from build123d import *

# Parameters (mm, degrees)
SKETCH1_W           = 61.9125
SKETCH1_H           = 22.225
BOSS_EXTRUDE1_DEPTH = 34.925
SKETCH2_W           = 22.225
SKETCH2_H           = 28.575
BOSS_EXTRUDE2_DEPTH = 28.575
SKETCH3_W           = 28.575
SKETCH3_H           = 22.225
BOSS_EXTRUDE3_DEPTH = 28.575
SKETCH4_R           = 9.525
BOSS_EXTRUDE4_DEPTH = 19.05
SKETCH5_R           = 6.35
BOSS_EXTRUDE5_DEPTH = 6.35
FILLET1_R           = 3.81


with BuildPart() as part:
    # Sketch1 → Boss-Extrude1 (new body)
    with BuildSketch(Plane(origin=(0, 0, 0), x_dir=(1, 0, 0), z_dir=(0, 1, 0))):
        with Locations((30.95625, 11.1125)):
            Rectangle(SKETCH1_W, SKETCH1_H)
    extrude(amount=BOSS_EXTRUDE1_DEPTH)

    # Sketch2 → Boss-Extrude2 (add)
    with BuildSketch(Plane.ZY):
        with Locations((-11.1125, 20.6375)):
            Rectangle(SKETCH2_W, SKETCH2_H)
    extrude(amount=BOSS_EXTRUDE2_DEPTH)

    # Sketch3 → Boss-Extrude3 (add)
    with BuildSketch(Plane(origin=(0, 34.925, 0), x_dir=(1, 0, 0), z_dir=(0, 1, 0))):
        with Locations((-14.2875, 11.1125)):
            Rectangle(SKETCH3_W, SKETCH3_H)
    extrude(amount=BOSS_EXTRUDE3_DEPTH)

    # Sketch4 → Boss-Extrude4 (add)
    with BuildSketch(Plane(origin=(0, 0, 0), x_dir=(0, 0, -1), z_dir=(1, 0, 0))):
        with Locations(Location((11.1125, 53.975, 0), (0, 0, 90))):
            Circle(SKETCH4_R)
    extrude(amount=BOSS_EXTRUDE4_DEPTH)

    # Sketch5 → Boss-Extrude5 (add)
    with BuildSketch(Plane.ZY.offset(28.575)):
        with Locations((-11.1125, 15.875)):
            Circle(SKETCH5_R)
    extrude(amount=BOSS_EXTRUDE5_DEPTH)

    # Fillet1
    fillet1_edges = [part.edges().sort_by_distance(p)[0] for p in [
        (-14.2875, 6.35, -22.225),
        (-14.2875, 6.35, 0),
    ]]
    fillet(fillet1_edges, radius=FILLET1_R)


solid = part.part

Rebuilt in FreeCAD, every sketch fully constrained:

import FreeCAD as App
import Part
import Sketcher
Q = App.Units.Quantity


def edges_at(feature, points):
    """Names of the edges that pass closest to the given points."""
    edges = feature.Shape.Edges
    near = lambda p: min(range(len(edges)), key=lambda i: edges[i].distToShape(Part.Vertex(*p))[0])
    return sorted({f"Edge{near(p) + 1}" for p in points})

doc = App.newDocument("Part")
params = doc.addObject("Spreadsheet::Sheet", "Params")
for row, (alias, value) in enumerate([
    ("sketch1_width", "2.4375 in"),
    ("sketch1_height", "0.875 in"),
    ("pad1_length", "1.375 in"),
    ("sketch2_width", "1.125 in"),
    ("sketch2_height", "0.875 in"),
    ("pad2_length", "1.125 in"),
    ("sketch3_width", "1.125 in"),
    ("sketch3_height", "0.875 in"),
    ("pad3_length", "1.125 in"),
    ("sketch4_diameter", "0.75 in"),
    ("pad4_length", "0.75 in"),
    ("sketch5_diameter", "0.5 in"),
    ("pad5_length", "0.25 in"),
    ("fillet_radius", "0.15 in"),
], start=1):
    params.set(f"A{row}", alias)
    params.set(f"B{row}", "=" + value)
    params.setAlias(f"B{row}", alias)

body = doc.addObject("PartDesign::Body", "Body")

# Sketch on XZ plane
sketch1 = doc.addObject("Sketcher::SketchObject", "Sketch")
body.addObject(sketch1)
sketch1.AttachmentSupport = (doc.XZ_Plane, [""])
sketch1.MapMode = "FlatFace"
sketch1.addGeometry(Part.LineSegment(App.Vector(0, -22, 0), App.Vector(0, 0, 0)), False)
sketch1.addGeometry(Part.LineSegment(App.Vector(0, 0, 0), App.Vector(62, 0, 0)), False)
sketch1.addGeometry(Part.LineSegment(App.Vector(62, 0, 0), App.Vector(62, -22, 0)), False)
sketch1.addGeometry(Part.LineSegment(App.Vector(62, -22, 0), App.Vector(0, -22, 0)), False)
sketch1.addConstraint(Sketcher.Constraint("Coincident", 0, 2, 1, 1))
sketch1.addConstraint(Sketcher.Constraint("Coincident", 1, 2, 2, 1))
sketch1.addConstraint(Sketcher.Constraint("Coincident", 2, 2, 3, 1))
sketch1.addConstraint(Sketcher.Constraint("Coincident", 3, 2, 0, 1))
sketch1.addConstraint(Sketcher.Constraint("Vertical", 0))
sketch1.addConstraint(Sketcher.Constraint("Horizontal", 1))
sketch1.addConstraint(Sketcher.Constraint("Vertical", 2))
sketch1.addConstraint(Sketcher.Constraint("Horizontal", 3))
sketch1.addConstraint(Sketcher.Constraint("Coincident", 0, 2, -1, 1))
sketch1.addConstraint(Sketcher.Constraint("DistanceX", 1, 1, 1, 2, Q("2.4375 in")))
sketch1.addConstraint(Sketcher.Constraint("DistanceY", 0, 1, 0, 2, Q("0.875 in")))
sketch1.setExpression("Constraints[9]", "Params.sketch1_width")
sketch1.setExpression("Constraints[10]", "Params.sketch1_height")
pad1 = doc.addObject("PartDesign::Pad", "Pad")
body.addObject(pad1)
pad1.Profile = sketch1
pad1.setExpression("Length", "Params.pad1_length")
pad1.Reversed = True

# Sketch on YZ plane
sketch2 = doc.addObject("Sketcher::SketchObject", "Sketch001")
body.addObject(sketch2)
sketch2.AttachmentSupport = (doc.YZ_Plane, [""])
sketch2.MapMode = "FlatFace"
sketch2.addGeometry(Part.LineSegment(App.Vector(35, -22, 0), App.Vector(6, -22, 0)), False)
sketch2.addGeometry(Part.LineSegment(App.Vector(6, -22, 0), App.Vector(6, 0, 0)), False)
sketch2.addGeometry(Part.LineSegment(App.Vector(6, 0, 0), App.Vector(35, 0, 0)), False)
sketch2.addGeometry(Part.LineSegment(App.Vector(35, 0, 0), App.Vector(35, -22, 0)), False)
sketch2.addConstraint(Sketcher.Constraint("Coincident", 0, 2, 1, 1))
sketch2.addConstraint(Sketcher.Constraint("Coincident", 1, 2, 2, 1))
sketch2.addConstraint(Sketcher.Constraint("Coincident", 2, 2, 3, 1))
sketch2.addConstraint(Sketcher.Constraint("Coincident", 3, 2, 0, 1))
sketch2.addConstraint(Sketcher.Constraint("Horizontal", 0))
sketch2.addConstraint(Sketcher.Constraint("Vertical", 1))
sketch2.addConstraint(Sketcher.Constraint("Horizontal", 2))
sketch2.addConstraint(Sketcher.Constraint("Vertical", 3))
sketch2.addConstraint(Sketcher.Constraint("PointOnObject", 1, 2, -1))
sketch2.addConstraint(Sketcher.Constraint("DistanceX", 0, 2, 0, 1, Q("1.125 in")))
sketch2.addConstraint(Sketcher.Constraint("DistanceY", 1, 1, 1, 2, Q("0.875 in")))
sketch2.addConstraint(Sketcher.Constraint("DistanceX", -1, 1, 0, 2, Q("0.25 in")))
sketch2.setExpression("Constraints[9]", "Params.sketch2_width")
sketch2.setExpression("Constraints[10]", "Params.sketch2_height")
pad2 = doc.addObject("PartDesign::Pad", "Pad001")
body.addObject(pad2)
pad2.Profile = sketch2
pad2.setExpression("Length", "Params.pad2_length")
pad2.Reversed = True

# Sketch on XZ plane
sketch3 = doc.addObject("Sketcher::SketchObject", "Sketch002")
body.addObject(sketch3)
sketch3.AttachmentSupport = (doc.XZ_Plane, [""])
sketch3.MapMode = "FlatFace"
sketch3.AttachmentOffset = App.Placement(App.Vector(0, 0, -1.375 * 25.4), App.Rotation())
sketch3.addGeometry(Part.LineSegment(App.Vector(-29, -22, 0), App.Vector(-29, 0, 0)), False)
sketch3.addGeometry(Part.LineSegment(App.Vector(-29, 0, 0), App.Vector(0, 0, 0)), False)
sketch3.addGeometry(Part.LineSegment(App.Vector(0, 0, 0), App.Vector(0, -22, 0)), False)
sketch3.addGeometry(Part.LineSegment(App.Vector(0, -22, 0), App.Vector(-29, -22, 0)), False)
sketch3.addConstraint(Sketcher.Constraint("Coincident", 0, 2, 1, 1))
sketch3.addConstraint(Sketcher.Constraint("Coincident", 1, 2, 2, 1))
sketch3.addConstraint(Sketcher.Constraint("Coincident", 2, 2, 3, 1))
sketch3.addConstraint(Sketcher.Constraint("Coincident", 3, 2, 0, 1))
sketch3.addConstraint(Sketcher.Constraint("Vertical", 0))
sketch3.addConstraint(Sketcher.Constraint("Horizontal", 1))
sketch3.addConstraint(Sketcher.Constraint("Vertical", 2))
sketch3.addConstraint(Sketcher.Constraint("Horizontal", 3))
sketch3.addConstraint(Sketcher.Constraint("Coincident", 1, 2, -1, 1))
sketch3.addConstraint(Sketcher.Constraint("DistanceX", 1, 1, 1, 2, Q("1.125 in")))
sketch3.addConstraint(Sketcher.Constraint("DistanceY", 0, 1, 0, 2, Q("0.875 in")))
sketch3.setExpression("Constraints[9]", "Params.sketch3_width")
sketch3.setExpression("Constraints[10]", "Params.sketch3_height")
pad3 = doc.addObject("PartDesign::Pad", "Pad002")
body.addObject(pad3)
pad3.Profile = sketch3
pad3.setExpression("Length", "Params.pad3_length")
pad3.Reversed = True

# Sketch on YZ plane
sketch4 = doc.addObject("Sketcher::SketchObject", "Sketch003")
body.addObject(sketch4)
sketch4.AttachmentSupport = (doc.YZ_Plane, [""])
sketch4.MapMode = "FlatFace"
sketch4.addGeometry(Part.Circle(App.Vector(54, -11, 0), App.Vector(0, 0, 1), 10), False)
sketch4.addConstraint(Sketcher.Constraint("Diameter", 0, Q("0.75 in")))
sketch4.addConstraint(Sketcher.Constraint("DistanceX", -1, 1, 0, 3, Q("2.125 in")))
sketch4.addConstraint(Sketcher.Constraint("DistanceY", 0, 3, -1, 1, Q("0.4375 in")))
sketch4.setExpression("Constraints[0]", "Params.sketch4_diameter")
pad4 = doc.addObject("PartDesign::Pad", "Pad003")
body.addObject(pad4)
pad4.Profile = sketch4
pad4.setExpression("Length", "Params.pad4_length")

# Sketch on YZ plane
sketch5 = doc.addObject("Sketcher::SketchObject", "Sketch004")
body.addObject(sketch5)
sketch5.AttachmentSupport = (doc.YZ_Plane, [""])
sketch5.MapMode = "FlatFace"
sketch5.AttachmentOffset = App.Placement(App.Vector(0, 0, -1.125 * 25.4), App.Rotation())
sketch5.addGeometry(Part.Circle(App.Vector(16, -11, 0), App.Vector(0, 0, 1), 6), False)
sketch5.addConstraint(Sketcher.Constraint("Diameter", 0, Q("0.5 in")))
sketch5.addConstraint(Sketcher.Constraint("DistanceX", -1, 1, 0, 3, Q("0.625 in")))
sketch5.addConstraint(Sketcher.Constraint("DistanceY", 0, 3, -1, 1, Q("0.4375 in")))
sketch5.setExpression("Constraints[0]", "Params.sketch5_diameter")
pad5 = doc.addObject("PartDesign::Pad", "Pad004")
body.addObject(pad5)
pad5.Profile = sketch5
pad5.setExpression("Length", "Params.pad5_length")
pad5.Reversed = True
doc.recompute()

fillet = doc.addObject("PartDesign::Fillet", "Fillet")
body.addObject(fillet)
fillet.Base = (pad5, edges_at(pad5, [(-14.287, 6.35, -22.225), (-14.287, 6.35, 0)]))
fillet.setExpression("Radius", "Params.fillet_radius")

doc.recompute()
